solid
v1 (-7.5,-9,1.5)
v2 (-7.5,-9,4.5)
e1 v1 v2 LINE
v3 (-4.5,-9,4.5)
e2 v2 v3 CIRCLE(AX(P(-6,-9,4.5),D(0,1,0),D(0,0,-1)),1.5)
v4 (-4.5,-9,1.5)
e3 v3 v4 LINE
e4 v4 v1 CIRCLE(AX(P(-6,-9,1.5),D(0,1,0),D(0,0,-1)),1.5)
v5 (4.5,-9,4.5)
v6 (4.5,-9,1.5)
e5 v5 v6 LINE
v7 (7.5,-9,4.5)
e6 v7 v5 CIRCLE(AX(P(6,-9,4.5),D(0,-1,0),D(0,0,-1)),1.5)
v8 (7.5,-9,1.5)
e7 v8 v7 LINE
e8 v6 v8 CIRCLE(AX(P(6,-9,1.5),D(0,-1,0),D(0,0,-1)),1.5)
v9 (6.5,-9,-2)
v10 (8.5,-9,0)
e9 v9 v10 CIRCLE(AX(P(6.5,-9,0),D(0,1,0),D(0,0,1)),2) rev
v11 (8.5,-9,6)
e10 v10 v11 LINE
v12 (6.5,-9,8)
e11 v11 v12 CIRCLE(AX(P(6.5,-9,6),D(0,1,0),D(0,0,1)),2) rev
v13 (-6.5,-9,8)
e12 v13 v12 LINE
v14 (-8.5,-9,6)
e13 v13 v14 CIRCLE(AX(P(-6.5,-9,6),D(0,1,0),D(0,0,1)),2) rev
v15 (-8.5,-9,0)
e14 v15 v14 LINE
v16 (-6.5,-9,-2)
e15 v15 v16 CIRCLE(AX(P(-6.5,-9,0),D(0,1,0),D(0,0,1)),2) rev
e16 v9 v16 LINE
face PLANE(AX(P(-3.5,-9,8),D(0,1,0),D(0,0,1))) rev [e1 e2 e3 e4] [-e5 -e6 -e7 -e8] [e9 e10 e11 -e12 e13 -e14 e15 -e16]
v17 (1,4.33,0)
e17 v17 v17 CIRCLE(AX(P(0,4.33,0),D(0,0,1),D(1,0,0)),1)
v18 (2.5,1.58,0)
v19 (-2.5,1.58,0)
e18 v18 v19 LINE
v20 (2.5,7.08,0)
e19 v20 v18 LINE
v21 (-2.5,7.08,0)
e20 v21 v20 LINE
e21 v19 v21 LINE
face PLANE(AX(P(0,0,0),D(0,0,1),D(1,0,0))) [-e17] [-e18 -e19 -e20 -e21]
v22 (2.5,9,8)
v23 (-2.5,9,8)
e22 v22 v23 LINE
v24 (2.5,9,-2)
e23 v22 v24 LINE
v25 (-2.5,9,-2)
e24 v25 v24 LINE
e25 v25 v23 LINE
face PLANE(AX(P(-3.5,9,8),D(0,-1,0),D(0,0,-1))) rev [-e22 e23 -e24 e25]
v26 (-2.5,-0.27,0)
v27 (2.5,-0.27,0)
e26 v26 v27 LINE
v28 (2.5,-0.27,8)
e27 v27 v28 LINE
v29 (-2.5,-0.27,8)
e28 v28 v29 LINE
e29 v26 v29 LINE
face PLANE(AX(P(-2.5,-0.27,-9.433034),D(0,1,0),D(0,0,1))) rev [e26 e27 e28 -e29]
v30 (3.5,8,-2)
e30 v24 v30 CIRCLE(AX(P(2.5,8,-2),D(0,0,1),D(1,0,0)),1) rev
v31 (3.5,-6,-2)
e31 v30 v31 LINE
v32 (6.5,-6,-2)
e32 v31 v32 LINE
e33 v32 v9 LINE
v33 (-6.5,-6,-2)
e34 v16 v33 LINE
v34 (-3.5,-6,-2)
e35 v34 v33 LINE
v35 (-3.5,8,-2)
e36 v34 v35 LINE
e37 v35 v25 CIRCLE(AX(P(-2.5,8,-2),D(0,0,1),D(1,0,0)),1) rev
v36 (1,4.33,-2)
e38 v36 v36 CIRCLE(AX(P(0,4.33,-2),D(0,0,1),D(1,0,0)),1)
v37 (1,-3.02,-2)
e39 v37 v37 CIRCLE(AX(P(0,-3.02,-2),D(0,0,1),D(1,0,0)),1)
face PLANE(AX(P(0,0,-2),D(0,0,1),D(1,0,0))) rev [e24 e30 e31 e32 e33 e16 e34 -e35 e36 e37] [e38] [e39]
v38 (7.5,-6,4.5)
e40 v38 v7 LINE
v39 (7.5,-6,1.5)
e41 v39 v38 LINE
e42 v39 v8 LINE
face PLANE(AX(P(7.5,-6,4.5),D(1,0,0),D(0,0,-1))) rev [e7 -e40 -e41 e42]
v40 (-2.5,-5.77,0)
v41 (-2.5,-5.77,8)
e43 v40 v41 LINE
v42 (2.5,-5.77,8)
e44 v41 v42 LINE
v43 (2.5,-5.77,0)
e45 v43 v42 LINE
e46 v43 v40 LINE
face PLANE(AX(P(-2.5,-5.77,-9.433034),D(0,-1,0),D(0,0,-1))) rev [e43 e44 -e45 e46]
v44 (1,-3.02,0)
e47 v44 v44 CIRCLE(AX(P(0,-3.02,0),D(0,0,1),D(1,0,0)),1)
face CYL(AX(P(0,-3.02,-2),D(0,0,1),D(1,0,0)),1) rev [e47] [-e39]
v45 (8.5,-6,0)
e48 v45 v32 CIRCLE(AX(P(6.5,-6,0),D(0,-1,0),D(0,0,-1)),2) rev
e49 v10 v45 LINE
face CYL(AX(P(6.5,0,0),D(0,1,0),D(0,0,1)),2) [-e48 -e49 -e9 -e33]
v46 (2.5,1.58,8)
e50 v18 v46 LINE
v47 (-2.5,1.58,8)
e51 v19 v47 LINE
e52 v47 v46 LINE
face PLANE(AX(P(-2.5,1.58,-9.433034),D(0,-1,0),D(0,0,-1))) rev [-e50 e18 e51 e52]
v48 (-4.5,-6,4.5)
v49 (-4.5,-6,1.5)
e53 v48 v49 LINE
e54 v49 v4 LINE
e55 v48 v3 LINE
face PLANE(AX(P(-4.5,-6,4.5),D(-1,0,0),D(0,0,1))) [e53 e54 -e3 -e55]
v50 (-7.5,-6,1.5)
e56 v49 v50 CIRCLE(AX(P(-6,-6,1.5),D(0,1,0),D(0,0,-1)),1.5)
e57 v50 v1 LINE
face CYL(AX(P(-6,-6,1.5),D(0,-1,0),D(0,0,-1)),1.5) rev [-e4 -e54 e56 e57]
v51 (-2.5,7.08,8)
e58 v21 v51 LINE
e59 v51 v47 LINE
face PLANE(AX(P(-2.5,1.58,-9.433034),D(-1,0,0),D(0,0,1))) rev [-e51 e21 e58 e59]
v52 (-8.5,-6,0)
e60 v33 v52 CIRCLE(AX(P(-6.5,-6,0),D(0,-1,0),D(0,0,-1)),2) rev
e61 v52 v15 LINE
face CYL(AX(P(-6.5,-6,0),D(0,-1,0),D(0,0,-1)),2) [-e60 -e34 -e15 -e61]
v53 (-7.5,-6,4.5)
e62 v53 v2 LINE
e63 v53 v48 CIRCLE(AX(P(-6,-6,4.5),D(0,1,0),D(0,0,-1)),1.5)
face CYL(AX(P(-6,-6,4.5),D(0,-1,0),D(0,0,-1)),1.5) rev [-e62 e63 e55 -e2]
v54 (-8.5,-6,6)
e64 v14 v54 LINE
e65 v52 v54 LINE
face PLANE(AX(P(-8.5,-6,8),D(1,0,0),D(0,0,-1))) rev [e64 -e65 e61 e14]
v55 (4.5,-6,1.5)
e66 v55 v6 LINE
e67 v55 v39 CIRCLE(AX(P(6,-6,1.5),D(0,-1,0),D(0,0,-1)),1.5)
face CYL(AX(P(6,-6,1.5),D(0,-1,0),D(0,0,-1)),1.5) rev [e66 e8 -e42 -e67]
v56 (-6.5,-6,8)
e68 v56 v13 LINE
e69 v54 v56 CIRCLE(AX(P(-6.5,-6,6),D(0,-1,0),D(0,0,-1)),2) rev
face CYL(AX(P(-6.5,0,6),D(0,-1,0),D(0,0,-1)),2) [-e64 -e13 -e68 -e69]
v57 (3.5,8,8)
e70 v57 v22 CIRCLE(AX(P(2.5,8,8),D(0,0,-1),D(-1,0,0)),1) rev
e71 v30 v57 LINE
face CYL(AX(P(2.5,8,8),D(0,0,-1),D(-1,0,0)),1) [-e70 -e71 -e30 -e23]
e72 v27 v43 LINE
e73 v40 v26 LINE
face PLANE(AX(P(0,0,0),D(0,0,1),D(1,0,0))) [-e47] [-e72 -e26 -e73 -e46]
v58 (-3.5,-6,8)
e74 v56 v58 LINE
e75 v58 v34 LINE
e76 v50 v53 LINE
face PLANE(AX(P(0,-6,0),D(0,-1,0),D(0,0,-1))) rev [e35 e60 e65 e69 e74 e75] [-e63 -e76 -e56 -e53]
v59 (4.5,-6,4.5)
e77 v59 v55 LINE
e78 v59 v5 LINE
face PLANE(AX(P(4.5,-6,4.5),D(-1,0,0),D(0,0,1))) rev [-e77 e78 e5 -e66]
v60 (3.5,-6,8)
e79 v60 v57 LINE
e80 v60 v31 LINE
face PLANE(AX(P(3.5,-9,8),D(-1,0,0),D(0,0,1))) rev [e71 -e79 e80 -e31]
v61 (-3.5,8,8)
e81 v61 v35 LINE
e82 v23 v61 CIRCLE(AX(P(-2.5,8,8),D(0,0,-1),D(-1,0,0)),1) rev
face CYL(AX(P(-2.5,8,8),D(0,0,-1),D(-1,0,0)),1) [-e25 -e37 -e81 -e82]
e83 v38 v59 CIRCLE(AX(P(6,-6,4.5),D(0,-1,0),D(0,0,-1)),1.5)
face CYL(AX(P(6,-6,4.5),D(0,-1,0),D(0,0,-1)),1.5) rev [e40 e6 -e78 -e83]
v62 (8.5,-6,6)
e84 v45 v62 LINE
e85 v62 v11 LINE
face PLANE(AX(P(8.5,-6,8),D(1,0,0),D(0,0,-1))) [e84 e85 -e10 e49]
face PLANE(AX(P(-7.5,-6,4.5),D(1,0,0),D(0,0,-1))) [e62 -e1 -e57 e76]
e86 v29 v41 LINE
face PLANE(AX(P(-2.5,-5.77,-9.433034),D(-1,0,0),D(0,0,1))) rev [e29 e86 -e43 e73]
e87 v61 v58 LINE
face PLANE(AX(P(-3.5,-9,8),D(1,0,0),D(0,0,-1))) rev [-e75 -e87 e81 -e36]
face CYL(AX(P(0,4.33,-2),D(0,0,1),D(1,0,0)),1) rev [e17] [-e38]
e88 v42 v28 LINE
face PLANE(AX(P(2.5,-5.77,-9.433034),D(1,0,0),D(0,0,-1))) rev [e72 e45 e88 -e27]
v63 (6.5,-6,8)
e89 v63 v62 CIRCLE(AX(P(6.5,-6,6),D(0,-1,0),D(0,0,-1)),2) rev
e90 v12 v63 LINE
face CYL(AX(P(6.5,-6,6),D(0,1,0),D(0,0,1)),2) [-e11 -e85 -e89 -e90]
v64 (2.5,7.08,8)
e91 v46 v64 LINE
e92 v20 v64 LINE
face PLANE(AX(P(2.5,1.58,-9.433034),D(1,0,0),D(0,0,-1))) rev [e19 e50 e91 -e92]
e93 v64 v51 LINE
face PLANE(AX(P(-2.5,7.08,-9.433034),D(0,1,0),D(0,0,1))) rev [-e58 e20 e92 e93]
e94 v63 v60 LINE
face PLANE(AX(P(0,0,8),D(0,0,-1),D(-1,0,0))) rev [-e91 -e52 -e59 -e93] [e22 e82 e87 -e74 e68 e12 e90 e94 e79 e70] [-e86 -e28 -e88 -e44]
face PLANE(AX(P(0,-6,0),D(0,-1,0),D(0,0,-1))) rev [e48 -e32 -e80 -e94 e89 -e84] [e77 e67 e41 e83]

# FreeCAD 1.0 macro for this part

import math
import FreeCAD as App
import Part
import Sketcher
Q = App.Units.Quantity


def edges_at(feature, points):
    """Names of the edges that pass closest to the given points."""
    edges = feature.Shape.Edges
    near = lambda p: min(range(len(edges)), key=lambda i: edges[i].distToShape(Part.Vertex(*p))[0])
    return sorted({f"Edge{near(p) + 1}" for p in points})


def add_polygon(sketch, points):
    """Adds a closed chain of lines whose ends are joined by coincident constraints."""
    first, n = sketch.GeometryCount, len(points)
    for a, b in zip(points, points[1:] + points[:1]):
        sketch.addGeometry(Part.LineSegment(App.Vector(*a, 0), App.Vector(*b, 0)), False)
    for i in range(n):
        sketch.addConstraint(Sketcher.Constraint("Coincident", first + i, 2, first + (i + 1) % n, 1))

doc = App.newDocument("Part")
body = doc.addObject("PartDesign::Body", "Body")

# Sketch on XY plane
sketch1 = body.newObject("Sketcher::SketchObject", "Sketch")
sketch1.AttachmentSupport = (doc.getObject("XY_Plane"), [""])
sketch1.MapMode = "FlatFace"
add_polygon(sketch1, [(-4, 9), (-4, -9), (4, -9), (4, 9)])  # lines 0-3
sketch1.addConstraint([
    Sketcher.Constraint("Vertical", 0),
    Sketcher.Constraint("Horizontal", 1),
    Sketcher.Constraint("Vertical", 2),
    Sketcher.Constraint("Horizontal", 3),
    Sketcher.Constraint("Symmetric", 0, 2, 2, 2, -1, 1),
    Sketcher.Constraint("DistanceX", 1, 1, 1, 2, Q("7 mm")),
    Sketcher.Constraint("DistanceY", 0, 2, 0, 1, Q("18 mm")),
])
pad1 = body.newObject("PartDesign::Pad", "Pad")
pad1.Profile = sketch1
pad1.Length = 8

# Sketch on XY plane
sketch2 = body.newObject("Sketcher::SketchObject", "Sketch001")
sketch2.AttachmentSupport = (doc.getObject("XY_Plane"), [""])
sketch2.MapMode = "FlatFace"
add_polygon(sketch2, [(4, 9), (4, -9), (-4, -9), (-4, 9)])  # lines 0-3
sketch2.addConstraint([
    Sketcher.Constraint("Vertical", 0),
    Sketcher.Constraint("Horizontal", 1),
    Sketcher.Constraint("Vertical", 2),
    Sketcher.Constraint("Horizontal", 3),
    Sketcher.Constraint("Symmetric", 0, 2, 2, 2, -1, 1),
    Sketcher.Constraint("DistanceX", 1, 2, 1, 1, Q("7 mm")),
    Sketcher.Constraint("DistanceY", 0, 2, 0, 1, Q("18 mm")),
])
pad2 = body.newObject("PartDesign::Pad", "Pad001")
pad2.Profile = sketch2
pad2.Length = 2
pad2.Reversed = True

# Sketch on XY plane
sketch3 = body.newObject("Sketcher::SketchObject", "Sketch002")
sketch3.AttachmentSupport = (doc.getObject("XY_Plane"), [""])
sketch3.MapMode = "FlatFace"
sketch3.AttachmentOffset = App.Placement(App.Vector(0, 0, 8), App.Rotation())
add_polygon(sketch3, [(-2, 7), (-2, 2), (2, 2), (2, 7)])  # lines 0-3
add_polygon(sketch3, [(-2, 0), (-2, -6), (2, -6), (2, 0)])  # lines 4-7
sketch3.addConstraint([
    Sketcher.Constraint("Vertical", 0),
    Sketcher.Constraint("Horizontal", 1),
    Sketcher.Constraint("Vertical", 2),
    Sketcher.Constraint("Horizontal", 3),
    Sketcher.Constraint("Vertical", 4),
    Sketcher.Constraint("Horizontal", 5),
    Sketcher.Constraint("Vertical", 6),
    Sketcher.Constraint("Horizontal", 7),
    Sketcher.Constraint("Vertical", 3, 2, 4, 2),
    Sketcher.Constraint("Vertical", 2, 2, 5, 2),
    Sketcher.Constraint("Equal", 2, 4),
    Sketcher.Constraint("DistanceX", 1, 1, 1, 2, Q("5 mm")),
    Sketcher.Constraint("DistanceY", 0, 2, 0, 1, Q("5.5 mm")),
    Sketcher.Constraint("DistanceX", 0, 2, -1, 1, Q("2.5 mm")),
    Sketcher.Constraint("DistanceY", -1, 1, 0, 2, Q("1.58 mm")),
    Sketcher.Constraint("DistanceY", 4, 2, -1, 1, Q("5.77 mm")),
])
pocket1 = body.newObject("PartDesign::Pocket", "Pocket")
pocket1.Profile = sketch3
pocket1.Length = 8

# Sketch on XY plane
sketch4 = body.newObject("Sketcher::SketchObject", "Sketch003")
sketch4.AttachmentSupport = (doc.getObject("XY_Plane"), [""])
sketch4.MapMode = "FlatFace"
sketch4.addGeometry([
    Part.Circle(App.Vector(0, 4.3, 0), App.Vector(0, 0, 1), 1),
    Part.Circle(App.Vector(0, -3, 0), App.Vector(0, 0, 1), 1),
], False)
sketch4.addConstraint([
    Sketcher.Constraint("Equal", 0, 1),
    Sketcher.Constraint("PointOnObject", 0, 3, -2),
    Sketcher.Constraint("PointOnObject", 1, 3, -2),
    Sketcher.Constraint("Diameter", 0, Q("2 mm")),
    Sketcher.Constraint("DistanceY", -1, 1, 0, 3, Q("4.33 mm")),
    Sketcher.Constraint("DistanceY", 1, 3, -1, 1, Q("3.02 mm")),
])
pocket2 = body.newObject("PartDesign::Pocket", "Pocket001")
pocket2.Profile = sketch4
pocket2.Type = "ThroughAll"

# Sketch on XZ plane
sketch5 = body.newObject("Sketcher::SketchObject", "Sketch004")
sketch5.AttachmentSupport = (doc.getObject("XZ_Plane"), [""])
sketch5.MapMode = "FlatFace"
sketch5.AttachmentOffset = App.Placement(App.Vector(0, 0, 9), App.Rotation())
add_polygon(sketch5, [(3.5, 8), (3.5, -2), (8.5, -2), (8.5, 8)])  # lines 0-3
sketch5.addGeometry(Part.ArcOfCircle(Part.Circle(App.Vector(6, 4.5, 0), App.Vector(0, 0, 1), 1.5), math.radians(0), math.radians(180)), False)  # 4
sketch5.addGeometry(Part.LineSegment(App.Vector(7.5, 4.5, 0), App.Vector(7.5, 1.5, 0)), False)  # 5
sketch5.addGeometry(Part.ArcOfCircle(Part.Circle(App.Vector(6, 1.5, 0), App.Vector(0, 0, 1), 1.5), math.radians(180), math.radians(360)), False)  # 6
sketch5.addGeometry(Part.LineSegment(App.Vector(4.5, 1.5, 0), App.Vector(4.5, 4.5, 0)), False)  # 7
sketch5.addConstraint([
    Sketcher.Constraint("Tangent", 4, 1, 5, 1),
    Sketcher.Constraint("Tangent", 5, 2, 6, 2),
    Sketcher.Constraint("Tangent", 6, 1, 7, 1),
    Sketcher.Constraint("Tangent", 7, 2, 4, 2),
    Sketcher.Constraint("Vertical", 0),
    Sketcher.Constraint("Horizontal", 1),
    Sketcher.Constraint("Vertical", 2),
    Sketcher.Constraint("Horizontal", 3),
    Sketcher.Constraint("Vertical", 5),
    Sketcher.Constraint("Vertical", 7),
    Sketcher.Constraint("Radius", 4, Q("1.5 mm")),
    Sketcher.Constraint("DistanceX", 1, 1, 1, 2, Q("5 mm")),
    Sketcher.Constraint("DistanceY", 0, 2, 0, 1, Q("10 mm")),
    Sketcher.Constraint("DistanceY", 5, 2, 5, 1, Q("3 mm")),
    Sketcher.Constraint("DistanceX", -1, 1, 4, 3, Q("6 mm")),
    Sketcher.Constraint("DistanceY", 0, 2, -1, 1, Q("2 mm")),
    Sketcher.Constraint("DistanceX", 4, 1, 2, 2, Q("1 mm")),
    Sketcher.Constraint("DistanceY", -1, 1, 4, 3, Q("4.5 mm")),
])
pad3 = body.newObject("PartDesign::Pad", "Pad002")
pad3.Profile = sketch5
pad3.Length = 3
pad3.Reversed = True
doc.recompute()

fillet = body.newObject("PartDesign::Fillet", "Fillet")
fillet.Base = (pad3, edges_at(pad3, [(8.5, -7.5, -2), (8.5, -7.5, 8)]))
fillet.Radius = 2
doc.recompute()

mirrored = body.newObject("PartDesign::Mirrored", "Mirrored")
mirrored.Originals = [pad3]
mirrored.MirrorPlane = (doc.getObject("YZ_Plane"), [""])
body.Tip = mirrored
doc.recompute()

fillet2 = body.newObject("PartDesign::Fillet", "Fillet001")
fillet2.Base = (mirrored, edges_at(mirrored, [(-8.5, -7.5, -2), (-8.5, -7.5, 8)]))
fillet2.Radius = 2
doc.recompute()

fillet3 = body.newObject("PartDesign::Fillet", "Fillet002")
fillet3.Base = (fillet2, edges_at(fillet2, [(3.5, 9, 3), (-3.5, 9, 3)]))
fillet3.Radius = 1

doc.recompute()
